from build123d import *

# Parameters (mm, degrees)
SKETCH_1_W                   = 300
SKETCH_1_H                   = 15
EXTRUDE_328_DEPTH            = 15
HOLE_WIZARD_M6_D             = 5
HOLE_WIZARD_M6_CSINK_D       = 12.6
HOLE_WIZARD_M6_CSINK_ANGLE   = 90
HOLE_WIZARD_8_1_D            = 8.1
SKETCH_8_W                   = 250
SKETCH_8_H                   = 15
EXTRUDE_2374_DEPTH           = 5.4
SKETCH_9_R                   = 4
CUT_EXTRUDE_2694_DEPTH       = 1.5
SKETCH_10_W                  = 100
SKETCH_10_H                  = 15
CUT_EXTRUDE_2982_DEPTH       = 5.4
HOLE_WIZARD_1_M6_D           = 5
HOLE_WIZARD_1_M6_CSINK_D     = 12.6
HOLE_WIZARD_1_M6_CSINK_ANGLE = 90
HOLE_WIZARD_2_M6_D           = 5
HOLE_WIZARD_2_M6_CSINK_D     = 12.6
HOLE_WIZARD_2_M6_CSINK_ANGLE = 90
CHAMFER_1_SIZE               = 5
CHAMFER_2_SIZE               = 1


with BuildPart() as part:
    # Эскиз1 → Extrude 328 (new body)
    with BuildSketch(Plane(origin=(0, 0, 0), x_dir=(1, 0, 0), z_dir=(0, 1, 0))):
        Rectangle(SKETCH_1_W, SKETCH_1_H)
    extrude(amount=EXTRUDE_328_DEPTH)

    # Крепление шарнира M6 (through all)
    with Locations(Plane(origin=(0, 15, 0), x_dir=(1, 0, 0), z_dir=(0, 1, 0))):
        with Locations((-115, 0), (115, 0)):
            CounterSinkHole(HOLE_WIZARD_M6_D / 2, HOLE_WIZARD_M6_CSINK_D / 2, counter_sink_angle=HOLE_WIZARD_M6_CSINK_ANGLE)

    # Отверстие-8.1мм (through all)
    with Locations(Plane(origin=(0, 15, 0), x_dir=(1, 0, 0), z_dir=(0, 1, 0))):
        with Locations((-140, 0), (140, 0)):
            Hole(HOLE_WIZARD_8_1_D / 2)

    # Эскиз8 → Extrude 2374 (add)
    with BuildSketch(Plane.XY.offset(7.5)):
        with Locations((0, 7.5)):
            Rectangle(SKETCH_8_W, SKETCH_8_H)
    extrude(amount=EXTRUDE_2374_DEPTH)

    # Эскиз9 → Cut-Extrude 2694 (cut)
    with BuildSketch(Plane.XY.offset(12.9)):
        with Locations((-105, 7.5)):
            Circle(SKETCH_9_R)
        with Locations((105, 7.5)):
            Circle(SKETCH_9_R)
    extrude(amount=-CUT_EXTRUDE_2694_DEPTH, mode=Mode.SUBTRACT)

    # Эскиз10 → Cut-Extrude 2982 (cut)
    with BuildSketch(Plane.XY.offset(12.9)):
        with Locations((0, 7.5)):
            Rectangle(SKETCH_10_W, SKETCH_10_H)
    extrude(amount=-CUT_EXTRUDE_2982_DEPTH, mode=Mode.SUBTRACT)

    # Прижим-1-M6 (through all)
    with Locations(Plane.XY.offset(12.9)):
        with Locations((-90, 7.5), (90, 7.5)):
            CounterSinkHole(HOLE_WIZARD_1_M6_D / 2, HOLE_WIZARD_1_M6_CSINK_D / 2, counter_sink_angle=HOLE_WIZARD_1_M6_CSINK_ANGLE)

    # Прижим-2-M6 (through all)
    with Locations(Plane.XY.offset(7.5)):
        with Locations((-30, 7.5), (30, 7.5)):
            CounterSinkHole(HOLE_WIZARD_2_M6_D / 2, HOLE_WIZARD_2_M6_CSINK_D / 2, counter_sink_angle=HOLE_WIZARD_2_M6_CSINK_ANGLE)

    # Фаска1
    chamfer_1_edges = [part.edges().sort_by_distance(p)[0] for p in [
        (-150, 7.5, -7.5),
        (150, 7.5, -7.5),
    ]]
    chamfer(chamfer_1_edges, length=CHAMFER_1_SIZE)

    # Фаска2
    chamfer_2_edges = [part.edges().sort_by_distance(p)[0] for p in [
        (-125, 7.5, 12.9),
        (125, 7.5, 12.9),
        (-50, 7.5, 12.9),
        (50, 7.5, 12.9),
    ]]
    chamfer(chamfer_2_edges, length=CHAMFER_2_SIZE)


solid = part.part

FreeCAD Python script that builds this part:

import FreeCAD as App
import Part
import Sketcher
Q = App.Units.Quantity


def edges_at(feature, points):
    """Names of the edges that pass closest to the given points."""
    edges = feature.Shape.Edges
    near = lambda p: min(range(len(edges)), key=lambda i: edges[i].distToShape(Part.Vertex(*p))[0])
    return sorted({f"Edge{near(p) + 1}" for p in points})


def add_polygon(sketch, points):
    """Adds a closed chain of lines whose ends are joined by coincident constraints."""
    first, n = sketch.GeometryCount, len(points)
    for a, b in zip(points, points[1:] + points[:1]):
        sketch.addGeometry(Part.LineSegment(App.Vector(*a, 0), App.Vector(*b, 0)), False)
    for i in range(n):
        sketch.addConstraint(Sketcher.Constraint("Coincident", first + i, 2, first + (i + 1) % n, 1))

doc = App.newDocument("Part")
body = doc.addObject("PartDesign::Body", "Body")

sketch1 = doc.addObject("Sketcher::SketchObject", "Sketch")
body.addObject(sketch1)
sketch1.AttachmentSupport = (doc.XZ_Plane, [""])
sketch1.MapMode = "FlatFace"
add_polygon(sketch1, [(-150, -8), (-150, 8), (150, 8), (150, -8)])
sketch1.addConstraint([
    Sketcher.Constraint("Vertical", 0),
    Sketcher.Constraint("Horizontal", 1),
    Sketcher.Constraint("Vertical", 2),
    Sketcher.Constraint("Horizontal", 3),
    Sketcher.Constraint("Symmetric", 0, 2, 2, 2, -1, 1),
    Sketcher.Constraint("DistanceX", 1, 1, 1, 2, Q("300 mm")),
    Sketcher.Constraint("DistanceY", 0, 1, 0, 2, Q("15 mm")),
])
pad1 = doc.addObject("PartDesign::Pad", "Pad")
body.addObject(pad1)
pad1.Profile = sketch1
pad1.Length = 15
pad1.Reversed = True

sketch2 = doc.addObject("Sketcher::SketchObject", "Sketch001")
body.addObject(sketch2)
sketch2.AttachmentSupport = (doc.XZ_Plane, [""])
sketch2.MapMode = "FlatFace"
sketch2.AttachmentOffset = App.Placement(App.Vector(0, 0, -15), App.Rotation())
sketch2.addGeometry([
    Part.Circle(App.Vector(-115, 0, 0), App.Vector(0, 0, 1), 2.5),
    Part.Circle(App.Vector(115, 0, 0), App.Vector(0, 0, 1), 2.5),
], False)
sketch2.addConstraint([
    Sketcher.Constraint("Equal", 0, 1),
    Sketcher.Constraint("Symmetric", 0, 3, 1, 3, -1, 1),
    Sketcher.Constraint("PointOnObject", 0, 3, -1),
    Sketcher.Constraint("Diameter", 0, Q("5 mm")),
    Sketcher.Constraint("DistanceX", 0, 3, -1, 1, Q("115 mm")),
])
doc.recompute()
hole = doc.addObject("PartDesign::Hole", "Hole")
body.addObject(hole)
hole.Profile = sketch2
hole.ThreadType = "None"
hole.Diameter = 5
hole.DepthType = "ThroughAll"
hole.HoleCutType = "Countersink"
hole.HoleCutDiameter = 12.6
hole.HoleCutCountersinkAngle = 90
hole.Reversed = True

sketch3 = doc.addObject("Sketcher::SketchObject", "Sketch002")
body.addObject(sketch3)
sketch3.AttachmentSupport = (doc.XZ_Plane, [""])
sketch3.MapMode = "FlatFace"
sketch3.AttachmentOffset = App.Placement(App.Vector(0, 0, -15), App.Rotation())
sketch3.addGeometry([
    Part.Circle(App.Vector(-140, 0, 0), App.Vector(0, 0, 1), 4),
    Part.Circle(App.Vector(140, 0, 0), App.Vector(0, 0, 1), 4),
], False)
sketch3.addConstraint([
    Sketcher.Constraint("Equal", 0, 1),
    Sketcher.Constraint("Symmetric", 0, 3, 1, 3, -1, 1),
    Sketcher.Constraint("PointOnObject", 0, 3, -1),
    Sketcher.Constraint("Diameter", 0, Q("8.1 mm")),
    Sketcher.Constraint("DistanceX", 0, 3, -1, 1, Q("140 mm")),
])
doc.recompute()
hole2 = doc.addObject("PartDesign::Hole", "Hole001")
body.addObject(hole2)
hole2.Profile = sketch3
hole2.ThreadType = "None"
hole2.Diameter = 8.1
hole2.DepthType = "ThroughAll"
hole2.Reversed = True

sketch4 = doc.addObject("Sketcher::SketchObject", "Sketch003")
body.addObject(sketch4)
sketch4.AttachmentSupport = (doc.XY_Plane, [""])
sketch4.MapMode = "FlatFace"
sketch4.AttachmentOffset = App.Placement(App.Vector(0, 0, 7.5), App.Rotation())
add_polygon(sketch4, [(-125, 15), (-125, 0), (125, 0), (125, 15)])
sketch4.addConstraint([
    Sketcher.Constraint("Vertical", 0),
    Sketcher.Constraint("Horizontal", 1),
    Sketcher.Constraint("Vertical", 2),
    Sketcher.Constraint("Horizontal", 3),
    Sketcher.Constraint("Symmetric", 0, 2, 1, 2, -1, 1),
    Sketcher.Constraint("DistanceX", 1, 1, 1, 2, Q("250 mm")),
    Sketcher.Constraint("DistanceY", 0, 2, 0, 1, Q("15 mm")),
])
pad2 = doc.addObject("PartDesign::Pad", "Pad001")
body.addObject(pad2)
pad2.Profile = sketch4
pad2.Length = 5.4

sketch5 = doc.addObject("Sketcher::SketchObject", "Sketch004")
body.addObject(sketch5)
sketch5.AttachmentSupport = (doc.XY_Plane, [""])
sketch5.MapMode = "FlatFace"
sketch5.AttachmentOffset = App.Placement(App.Vector(0, 0, 12.9), App.Rotation())
sketch5.addGeometry([
    Part.Circle(App.Vector(-105, 7.5, 0), App.Vector(0, 0, 1), 4),
    Part.Circle(App.Vector(105, 7.5, 0), App.Vector(0, 0, 1), 4),
], False)
sketch5.addConstraint([
    Sketcher.Constraint("Equal", 0, 1),
    Sketcher.Constraint("Symmetric", 0, 3, 1, 3, -2),
    Sketcher.Constraint("Diameter", 0, Q("8 mm")),
    Sketcher.Constraint("DistanceX", 0, 3, -1, 1, Q("105 mm")),
    Sketcher.Constraint("DistanceY", -1, 1, 0, 3, Q("7.5 mm")),
])
pocket1 = doc.addObject("PartDesign::Pocket", "Pocket")
body.addObject(pocket1)
pocket1.Profile = sketch5
pocket1.Length = 1.5

sketch6 = doc.addObject("Sketcher::SketchObject", "Sketch005")
body.addObject(sketch6)
sketch6.AttachmentSupport = (doc.XY_Plane, [""])
sketch6.MapMode = "FlatFace"
sketch6.AttachmentOffset = App.Placement(App.Vector(0, 0, 12.9), App.Rotation())
add_polygon(sketch6, [(-50, 15), (-50, 0), (50, 0), (50, 15)])
sketch6.addConstraint([
    Sketcher.Constraint("Vertical", 0),
    Sketcher.Constraint("Horizontal", 1),
    Sketcher.Constraint("Vertical", 2),
    Sketcher.Constraint("Horizontal", 3),
    Sketcher.Constraint("Symmetric", 0, 2, 1, 2, -1, 1),
    Sketcher.Constraint("DistanceX", 1, 1, 1, 2, Q("100 mm")),
    Sketcher.Constraint("DistanceY", 0, 2, 0, 1, Q("15 mm")),
])
pocket2 = doc.addObject("PartDesign::Pocket", "Pocket001")
body.addObject(pocket2)
pocket2.Profile = sketch6
pocket2.Length = 5.4

sketch7 = doc.addObject("Sketcher::SketchObject", "Sketch006")
body.addObject(sketch7)
sketch7.AttachmentSupport = (doc.XY_Plane, [""])
sketch7.MapMode = "FlatFace"
sketch7.AttachmentOffset = App.Placement(App.Vector(0, 0, 12.9), App.Rotation())
sketch7.addGeometry([
    Part.Circle(App.Vector(-90, 7.5, 0), App.Vector(0, 0, 1), 2.5),
    Part.Circle(App.Vector(90, 7.5, 0), App.Vector(0, 0, 1), 2.5),
], False)
sketch7.addConstraint([
    Sketcher.Constraint("Equal", 0, 1),
    Sketcher.Constraint("Symmetric", 0, 3, 1, 3, -2),
    Sketcher.Constraint("Diameter", 0, Q("5 mm")),
    Sketcher.Constraint("DistanceX", 0, 3, -1, 1, Q("90 mm")),
    Sketcher.Constraint("DistanceY", -1, 1, 0, 3, Q("7.5 mm")),
])
doc.recompute()
hole3 = doc.addObject("PartDesign::Hole", "Hole002")
body.addObject(hole3)
hole3.Profile = sketch7
hole3.ThreadType = "None"
hole3.Diameter = 5
hole3.DepthType = "ThroughAll"
hole3.HoleCutType = "Countersink"
hole3.HoleCutDiameter = 12.6
hole3.HoleCutCountersinkAngle = 90

sketch8 = doc.addObject("Sketcher::SketchObject", "Sketch007")
body.addObject(sketch8)
sketch8.AttachmentSupport = (doc.XY_Plane, [""])
sketch8.MapMode = "FlatFace"
sketch8.AttachmentOffset = App.Placement(App.Vector(0, 0, 7.5), App.Rotation())
sketch8.addGeometry([
    Part.Circle(App.Vector(-30, 7.5, 0), App.Vector(0, 0, 1), 2.5),
    Part.Circle(App.Vector(30, 7.5, 0), App.Vector(0, 0, 1), 2.5),
], False)
sketch8.addConstraint([
    Sketcher.Constraint("Equal", 0, 1),
    Sketcher.Constraint("Symmetric", 0, 3, 1, 3, -2),
    Sketcher.Constraint("Diameter", 0, Q("5 mm")),
    Sketcher.Constraint("DistanceX", 0, 3, -1, 1, Q("30 mm")),
    Sketcher.Constraint("DistanceY", -1, 1, 0, 3, Q("7.5 mm")),
])
doc.recompute()
hole4 = doc.addObject("PartDesign::Hole", "Hole003")
body.addObject(hole4)
hole4.Profile = sketch8
hole4.ThreadType = "None"
hole4.Diameter = 5
hole4.DepthType = "ThroughAll"
hole4.HoleCutType = "Countersink"
hole4.HoleCutDiameter = 12.6
hole4.HoleCutCountersinkAngle = 90
doc.recompute()

chamfer = doc.addObject("PartDesign::Chamfer", "Chamfer")
body.addObject(chamfer)
chamfer.Base = (hole4, edges_at(hole4, [(-150, 7.5, -7.5), (150, 7.5, -7.5)]))
chamfer.Size = 5
doc.recompute()

chamfer2 = doc.addObject("PartDesign::Chamfer", "Chamfer001")
body.addObject(chamfer2)
chamfer2.Base = (chamfer, edges_at(chamfer, [
    (-125, 7.5, 12.9),
    (125, 7.5, 12.9),
    (-50, 7.5, 12.9),
    (50, 7.5, 12.9),
]))
chamfer2.Size = 1

doc.recompute()
